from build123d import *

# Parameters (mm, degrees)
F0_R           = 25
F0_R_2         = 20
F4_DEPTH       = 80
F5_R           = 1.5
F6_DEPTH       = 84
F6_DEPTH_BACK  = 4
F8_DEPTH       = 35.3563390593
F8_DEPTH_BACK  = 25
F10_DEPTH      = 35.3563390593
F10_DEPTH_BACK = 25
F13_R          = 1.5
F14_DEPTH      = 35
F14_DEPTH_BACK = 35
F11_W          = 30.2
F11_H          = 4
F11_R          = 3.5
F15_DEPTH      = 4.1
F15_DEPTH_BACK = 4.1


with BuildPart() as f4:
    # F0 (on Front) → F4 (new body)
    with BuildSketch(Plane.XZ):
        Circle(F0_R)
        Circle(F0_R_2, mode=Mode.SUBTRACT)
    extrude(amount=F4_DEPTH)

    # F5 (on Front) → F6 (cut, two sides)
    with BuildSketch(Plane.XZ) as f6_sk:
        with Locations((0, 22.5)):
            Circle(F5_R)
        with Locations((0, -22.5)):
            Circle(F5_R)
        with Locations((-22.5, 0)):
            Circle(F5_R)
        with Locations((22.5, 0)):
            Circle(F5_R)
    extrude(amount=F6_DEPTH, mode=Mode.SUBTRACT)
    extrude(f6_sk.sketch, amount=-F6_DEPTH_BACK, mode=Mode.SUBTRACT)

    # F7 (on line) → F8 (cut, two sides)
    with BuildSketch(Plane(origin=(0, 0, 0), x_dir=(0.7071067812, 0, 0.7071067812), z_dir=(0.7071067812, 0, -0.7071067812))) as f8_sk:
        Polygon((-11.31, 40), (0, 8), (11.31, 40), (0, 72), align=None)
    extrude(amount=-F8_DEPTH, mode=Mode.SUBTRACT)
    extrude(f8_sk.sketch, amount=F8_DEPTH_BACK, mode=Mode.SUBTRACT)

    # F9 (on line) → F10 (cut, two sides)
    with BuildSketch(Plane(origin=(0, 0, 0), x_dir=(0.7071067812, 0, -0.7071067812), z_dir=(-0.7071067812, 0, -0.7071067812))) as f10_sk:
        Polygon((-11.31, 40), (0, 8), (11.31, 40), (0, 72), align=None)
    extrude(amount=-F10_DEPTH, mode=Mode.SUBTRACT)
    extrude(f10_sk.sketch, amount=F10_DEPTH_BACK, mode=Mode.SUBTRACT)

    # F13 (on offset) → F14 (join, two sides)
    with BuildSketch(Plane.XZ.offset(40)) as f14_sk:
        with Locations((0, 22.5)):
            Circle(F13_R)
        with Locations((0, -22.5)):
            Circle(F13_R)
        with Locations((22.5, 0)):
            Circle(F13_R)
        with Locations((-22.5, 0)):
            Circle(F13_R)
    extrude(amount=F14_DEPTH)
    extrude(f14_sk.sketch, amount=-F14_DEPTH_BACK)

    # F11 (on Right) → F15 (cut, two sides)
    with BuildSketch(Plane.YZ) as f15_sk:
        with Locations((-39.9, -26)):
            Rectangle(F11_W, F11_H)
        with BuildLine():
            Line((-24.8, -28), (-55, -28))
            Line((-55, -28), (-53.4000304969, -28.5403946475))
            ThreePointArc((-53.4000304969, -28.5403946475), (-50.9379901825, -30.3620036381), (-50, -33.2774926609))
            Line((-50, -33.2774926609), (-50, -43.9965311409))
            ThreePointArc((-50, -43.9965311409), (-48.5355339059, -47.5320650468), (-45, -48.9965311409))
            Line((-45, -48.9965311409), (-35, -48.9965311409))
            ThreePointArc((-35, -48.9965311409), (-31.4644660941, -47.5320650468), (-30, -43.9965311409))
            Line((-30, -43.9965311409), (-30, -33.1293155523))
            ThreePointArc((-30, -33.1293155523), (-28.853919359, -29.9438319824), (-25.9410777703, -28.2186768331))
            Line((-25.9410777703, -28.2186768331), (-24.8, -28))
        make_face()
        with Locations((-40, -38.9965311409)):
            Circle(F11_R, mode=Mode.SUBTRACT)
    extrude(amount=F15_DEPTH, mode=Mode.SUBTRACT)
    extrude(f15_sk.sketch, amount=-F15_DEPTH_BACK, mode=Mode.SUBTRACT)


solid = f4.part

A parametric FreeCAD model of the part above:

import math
import FreeCAD as App
import Part
import Sketcher
Q = App.Units.Quantity

doc = App.newDocument("Part")
body = doc.addObject("PartDesign::Body", "Body")

# Sketch on XZ plane
sketch1 = doc.addObject("Sketcher::SketchObject", "Sketch")
body.addObject(sketch1)
sketch1.AttachmentSupport = (doc.XZ_Plane, [""])
sketch1.MapMode = "FlatFace"
sketch1.addGeometry(Part.Circle(App.Vector(0, 0, 0), App.Vector(0, 0, 1), 25), False)
sketch1.addGeometry(Part.Circle(App.Vector(0, 0, 0), App.Vector(0, 0, 1), 20), False)
sketch1.addConstraint(Sketcher.Constraint("Coincident", 0, 3, -1, 1))
sketch1.addConstraint(Sketcher.Constraint("Coincident", 1, 3, -1, 1))
sketch1.addConstraint(Sketcher.Constraint("Diameter", 0, Q("50 mm")))
sketch1.addConstraint(Sketcher.Constraint("Diameter", 1, Q("40 mm")))
pad1 = doc.addObject("PartDesign::Pad", "Pad")
body.addObject(pad1)
pad1.Profile = sketch1
pad1.Length = 80

# Sketch on XZ plane
sketch2 = doc.addObject("Sketcher::SketchObject", "Sketch001")
body.addObject(sketch2)
sketch2.AttachmentSupport = (doc.XZ_Plane, [""])
sketch2.MapMode = "FlatFace"
sketch2.addGeometry(Part.Circle(App.Vector(0, 22.5, 0), App.Vector(0, 0, 1), 1.5), False)
sketch2.addGeometry(Part.Circle(App.Vector(0, -22.5, 0), App.Vector(0, 0, 1), 1.5), False)
sketch2.addGeometry(Part.Circle(App.Vector(-22.5, 0, 0), App.Vector(0, 0, 1), 1.5), False)
sketch2.addGeometry(Part.Circle(App.Vector(22.5, 0, 0), App.Vector(0, 0, 1), 1.5), False)
sketch2.addConstraint(Sketcher.Constraint("Equal", 0, 1))
sketch2.addConstraint(Sketcher.Constraint("Equal", 1, 2))
sketch2.addConstraint(Sketcher.Constraint("Equal", 2, 3))
sketch2.addConstraint(Sketcher.Constraint("Symmetric", 0, 3, 1, 3, -1, 1))
sketch2.addConstraint(Sketcher.Constraint("Symmetric", 2, 3, 3, 3, -1, 1))
sketch2.addConstraint(Sketcher.Constraint("PointOnObject", 0, 3, -2))
sketch2.addConstraint(Sketcher.Constraint("PointOnObject", 2, 3, -1))
sketch2.addConstraint(Sketcher.Constraint("Diameter", 0, Q("3 mm")))
sketch2.addConstraint(Sketcher.Constraint("DistanceY", 1, 3, 0, 3, Q("45 mm")))
sketch2.addConstraint(Sketcher.Constraint("DistanceX", 2, 3, 3, 3, Q("45 mm")))
pocket1 = doc.addObject("PartDesign::Pocket", "Pocket")
body.addObject(pocket1)
pocket1.Profile = sketch2
pocket1.Type = "ThroughAll"
pocket1.Midplane = True

# Sketch on an angled plane
sketch3 = doc.addObject("Sketcher::SketchObject", "Sketch002")
body.addObject(sketch3)
sketch3.Placement = App.Placement(App.Vector(0, 0, 0), App.Rotation(App.Vector(0.707106781, 0, 0.707106781), App.Vector(0, -0.999999999, 0), App.Vector(0.707106781, 0, -0.707106781), "ZXY"))
sketch3.addGeometry(Part.LineSegment(App.Vector(-11, 40, 0), App.Vector(0, 8, 0)), False)
sketch3.addGeometry(Part.LineSegment(App.Vector(0, 8, 0), App.Vector(11, 40, 0)), False)
sketch3.addGeometry(Part.LineSegment(App.Vector(11, 40, 0), App.Vector(0, 72, 0)), False)
sketch3.addGeometry(Part.LineSegment(App.Vector(0, 72, 0), App.Vector(-11, 40, 0)), False)
sketch3.addConstraint(Sketcher.Constraint("Coincident", 0, 2, 1, 1))
sketch3.addConstraint(Sketcher.Constraint("Coincident", 1, 2, 2, 1))
sketch3.addConstraint(Sketcher.Constraint("Coincident", 2, 2, 3, 1))
sketch3.addConstraint(Sketcher.Constraint("Coincident", 3, 2, 0, 1))
sketch3.addConstraint(Sketcher.Constraint("Symmetric", 1, 2, 3, 2, -2))
sketch3.addConstraint(Sketcher.Constraint("PointOnObject", 0, 2, -2))
sketch3.addConstraint(Sketcher.Constraint("PointOnObject", 2, 2, -2))
sketch3.addConstraint(Sketcher.Constraint("Parallel", 0, 2))
sketch3.addConstraint(Sketcher.Constraint("DistanceY", -1, 1, 0, 2, Q("8 mm")))
sketch3.addConstraint(Sketcher.Constraint("DistanceY", -1, 1, 1, 2, Q("40 mm")))
sketch3.addConstraint(Sketcher.Constraint("DistanceX", -1, 1, 1, 2, Q("11.31 mm")))
pocket2 = doc.addObject("PartDesign::Pocket", "Pocket001")
body.addObject(pocket2)
pocket2.Profile = sketch3
pocket2.Type = "ThroughAll"
pocket2.Midplane = True

# Sketch on an angled plane
sketch4 = doc.addObject("Sketcher::SketchObject", "Sketch003")
body.addObject(sketch4)
sketch4.Placement = App.Placement(App.Vector(0, 0, 0), App.Rotation(App.Vector(0.707106781, 0, -0.707106781), App.Vector(0, -0.999999999, 0), App.Vector(-0.707106781, 0, -0.707106781), "ZXY"))
sketch4.addGeometry(Part.LineSegment(App.Vector(-11, 40, 0), App.Vector(0, 8, 0)), False)
sketch4.addGeometry(Part.LineSegment(App.Vector(0, 8, 0), App.Vector(11, 40, 0)), False)
sketch4.addGeometry(Part.LineSegment(App.Vector(11, 40, 0), App.Vector(0, 72, 0)), False)
sketch4.addGeometry(Part.LineSegment(App.Vector(0, 72, 0), App.Vector(-11, 40, 0)), False)
sketch4.addConstraint(Sketcher.Constraint("Coincident", 0, 2, 1, 1))
sketch4.addConstraint(Sketcher.Constraint("Coincident", 1, 2, 2, 1))
sketch4.addConstraint(Sketcher.Constraint("Coincident", 2, 2, 3, 1))
sketch4.addConstraint(Sketcher.Constraint("Coincident", 3, 2, 0, 1))
sketch4.addConstraint(Sketcher.Constraint("Symmetric", 1, 2, 3, 2, -2))
sketch4.addConstraint(Sketcher.Constraint("PointOnObject", 0, 2, -2))
sketch4.addConstraint(Sketcher.Constraint("PointOnObject", 2, 2, -2))
sketch4.addConstraint(Sketcher.Constraint("Parallel", 0, 2))
sketch4.addConstraint(Sketcher.Constraint("DistanceY", -1, 1, 0, 2, Q("8 mm")))
sketch4.addConstraint(Sketcher.Constraint("DistanceY", -1, 1, 1, 2, Q("40 mm")))
sketch4.addConstraint(Sketcher.Constraint("DistanceX", -1, 1, 1, 2, Q("11.31 mm")))
pocket3 = doc.addObject("PartDesign::Pocket", "Pocket002")
body.addObject(pocket3)
pocket3.Profile = sketch4
pocket3.Type = "ThroughAll"
pocket3.Midplane = True

# Sketch on XZ plane
sketch5 = doc.addObject("Sketcher::SketchObject", "Sketch004")
body.addObject(sketch5)
sketch5.AttachmentSupport = (doc.XZ_Plane, [""])
sketch5.MapMode = "FlatFace"
sketch5.AttachmentOffset = App.Placement(App.Vector(0, 0, 40), App.Rotation())
sketch5.addGeometry(Part.Circle(App.Vector(0, 22.5, 0), App.Vector(0, 0, 1), 1.5), False)
sketch5.addGeometry(Part.Circle(App.Vector(0, -22.5, 0), App.Vector(0, 0, 1), 1.5), False)
sketch5.addGeometry(Part.Circle(App.Vector(22.5, 0, 0), App.Vector(0, 0, 1), 1.5), False)
sketch5.addGeometry(Part.Circle(App.Vector(-22.5, 0, 0), App.Vector(0, 0, 1), 1.5), False)
sketch5.addConstraint(Sketcher.Constraint("Equal", 0, 1))
sketch5.addConstraint(Sketcher.Constraint("Equal", 1, 2))
sketch5.addConstraint(Sketcher.Constraint("Equal", 2, 3))
sketch5.addConstraint(Sketcher.Constraint("Symmetric", 0, 3, 1, 3, -1, 1))
sketch5.addConstraint(Sketcher.Constraint("Symmetric", 2, 3, 3, 3, -1, 1))
sketch5.addConstraint(Sketcher.Constraint("PointOnObject", 0, 3, -2))
sketch5.addConstraint(Sketcher.Constraint("PointOnObject", 2, 3, -1))
sketch5.addConstraint(Sketcher.Constraint("Diameter", 0, Q("3 mm")))
sketch5.addConstraint(Sketcher.Constraint("DistanceY", 1, 3, 0, 3, Q("45 mm")))
sketch5.addConstraint(Sketcher.Constraint("DistanceX", 3, 3, 2, 3, Q("45 mm")))
pad2 = doc.addObject("PartDesign::Pad", "Pad001")
body.addObject(pad2)
pad2.Profile = sketch5
pad2.Type = "TwoLengths"
pad2.Length = 35
pad2.Length2 = 35

# Sketch on YZ plane
sketch6 = doc.addObject("Sketcher::SketchObject", "Sketch005")
body.addObject(sketch6)
sketch6.AttachmentSupport = (doc.YZ_Plane, [""])
sketch6.MapMode = "FlatFace"
sketch6.addGeometry(Part.LineSegment(App.Vector(-55, -24, 0), App.Vector(-55, -28, 0)), False)
sketch6.addGeometry(Part.LineSegment(App.Vector(-55, -28, 0), App.Vector(-53.4, -28.5, 0)), False)
sketch6.addGeometry(Part.ArcOfCircle(Part.Circle(App.Vector(-55, -33.3, 0), App.Vector(0, 0, 1), 5), math.radians(0), math.radians(71)), False)
sketch6.addGeometry(Part.LineSegment(App.Vector(-50, -33.3, 0), App.Vector(-50, -44, 0)), False)
sketch6.addGeometry(Part.ArcOfCircle(Part.Circle(App.Vector(-45, -44, 0), App.Vector(0, 0, 1), 5), math.radians(180), math.radians(270)), False)
sketch6.addGeometry(Part.LineSegment(App.Vector(-45, -49, 0), App.Vector(-35, -49, 0)), False)
sketch6.addGeometry(Part.ArcOfCircle(Part.Circle(App.Vector(-35, -44, 0), App.Vector(0, 0, 1), 5), math.radians(-90), math.radians(0)), False)
sketch6.addGeometry(Part.LineSegment(App.Vector(-30, -44, 0), App.Vector(-30, -33.1, 0)), False)
sketch6.addGeometry(Part.ArcOfCircle(Part.Circle(App.Vector(-25, -33.1, 0), App.Vector(0, 0, 1), 5), math.radians(101), math.radians(180)), False)
sketch6.addGeometry(Part.LineSegment(App.Vector(-25.9, -28.2, 0), App.Vector(-24.8, -28, 0)), False)
sketch6.addGeometry(Part.LineSegment(App.Vector(-24.8, -28, 0), App.Vector(-24.8, -24, 0)), False)
sketch6.addGeometry(Part.LineSegment(App.Vector(-24.8, -24, 0), App.Vector(-55, -24, 0)), False)
sketch6.addGeometry(Part.Circle(App.Vector(-40, -39, 0), App.Vector(0, 0, 1), 3.5), False)
sketch6.addConstraint(Sketcher.Constraint("Coincident", 0, 2, 1, 1))
sketch6.addConstraint(Sketcher.Constraint("Tangent", 1, 2, 2, 2))
sketch6.addConstraint(Sketcher.Constraint("Tangent", 2, 1, 3, 1))
sketch6.addConstraint(Sketcher.Constraint("Tangent", 3, 2, 4, 1))
sketch6.addConstraint(Sketcher.Constraint("Tangent", 4, 2, 5, 1))
sketch6.addConstraint(Sketcher.Constraint("Tangent", 5, 2, 6, 1))
sketch6.addConstraint(Sketcher.Constraint("Tangent", 6, 2, 7, 1))
sketch6.addConstraint(Sketcher.Constraint("Tangent", 7, 2, 8, 2))
sketch6.addConstraint(Sketcher.Constraint("Tangent", 8, 1, 9, 1))
sketch6.addConstraint(Sketcher.Constraint("Coincident", 9, 2, 10, 1))
sketch6.addConstraint(Sketcher.Constraint("Coincident", 10, 2, 11, 1))
sketch6.addConstraint(Sketcher.Constraint("Coincident", 11, 2, 0, 1))
sketch6.addConstraint(Sketcher.Constraint("Vertical", 0))
sketch6.addConstraint(Sketcher.Constraint("Vertical", 3))
sketch6.addConstraint(Sketcher.Constraint("Horizontal", 5))
sketch6.addConstraint(Sketcher.Constraint("Vertical", 7))
sketch6.addConstraint(Sketcher.Constraint("Vertical", 10))
sketch6.addConstraint(Sketcher.Constraint("Horizontal", 11))
sketch6.addConstraint(Sketcher.Constraint("Equal", 2, 4))
sketch6.addConstraint(Sketcher.Constraint("Equal", 4, 6))
sketch6.addConstraint(Sketcher.Constraint("Equal", 6, 8))
sketch6.addConstraint(Sketcher.Constraint("Horizontal", 0, 2, 9, 2))
sketch6.addConstraint(Sketcher.Constraint("Vertical", 2, 3, 0, 2))
sketch6.addConstraint(Sketcher.Constraint("Diameter", 12, Q("7 mm")))
sketch6.addConstraint(Sketcher.Constraint("Radius", 2, Q("5 mm")))
sketch6.addConstraint(Sketcher.Constraint("DistanceX", 5, 1, 5, 2, Q("10 mm")))
sketch6.addConstraint(Sketcher.Constraint("DistanceY", 0, 2, 0, 1, Q("4 mm")))
sketch6.addConstraint(Sketcher.Constraint("DistanceX", 11, 2, 11, 1, Q("30.2 mm")))
sketch6.addConstraint(Sketcher.Constraint("DistanceX", 2, 3, -1, 1, Q("55 mm")))
sketch6.addConstraint(Sketcher.Constraint("DistanceX", 12, 3, -1, 1, Q("40 mm")))
sketch6.addConstraint(Sketcher.Constraint("DistanceY", 0, 2, -1, 1, Q("28 mm")))
sketch6.addConstraint(Sketcher.Constraint("DistanceY", 4, 3, 12, 3, Q("5 mm")))
sketch6.addConstraint(Sketcher.Constraint("DistanceY", 3, 2, 3, 1, Q("10.719038 mm")))
sketch6.addConstraint(Sketcher.Constraint("DistanceY", 2, 3, 1, 2, Q("4.737098 mm")))
sketch6.addConstraint(Sketcher.Constraint("DistanceY", 7, 1, 7, 2, Q("10.867216 mm")))
pocket4 = doc.addObject("PartDesign::Pocket", "Pocket003")
body.addObject(pocket4)
pocket4.Profile = sketch6
pocket4.Type = "TwoLengths"
pocket4.Length = 4.1
pocket4.Length2 = 4.1
pocket4.Reversed = True

doc.recompute()
